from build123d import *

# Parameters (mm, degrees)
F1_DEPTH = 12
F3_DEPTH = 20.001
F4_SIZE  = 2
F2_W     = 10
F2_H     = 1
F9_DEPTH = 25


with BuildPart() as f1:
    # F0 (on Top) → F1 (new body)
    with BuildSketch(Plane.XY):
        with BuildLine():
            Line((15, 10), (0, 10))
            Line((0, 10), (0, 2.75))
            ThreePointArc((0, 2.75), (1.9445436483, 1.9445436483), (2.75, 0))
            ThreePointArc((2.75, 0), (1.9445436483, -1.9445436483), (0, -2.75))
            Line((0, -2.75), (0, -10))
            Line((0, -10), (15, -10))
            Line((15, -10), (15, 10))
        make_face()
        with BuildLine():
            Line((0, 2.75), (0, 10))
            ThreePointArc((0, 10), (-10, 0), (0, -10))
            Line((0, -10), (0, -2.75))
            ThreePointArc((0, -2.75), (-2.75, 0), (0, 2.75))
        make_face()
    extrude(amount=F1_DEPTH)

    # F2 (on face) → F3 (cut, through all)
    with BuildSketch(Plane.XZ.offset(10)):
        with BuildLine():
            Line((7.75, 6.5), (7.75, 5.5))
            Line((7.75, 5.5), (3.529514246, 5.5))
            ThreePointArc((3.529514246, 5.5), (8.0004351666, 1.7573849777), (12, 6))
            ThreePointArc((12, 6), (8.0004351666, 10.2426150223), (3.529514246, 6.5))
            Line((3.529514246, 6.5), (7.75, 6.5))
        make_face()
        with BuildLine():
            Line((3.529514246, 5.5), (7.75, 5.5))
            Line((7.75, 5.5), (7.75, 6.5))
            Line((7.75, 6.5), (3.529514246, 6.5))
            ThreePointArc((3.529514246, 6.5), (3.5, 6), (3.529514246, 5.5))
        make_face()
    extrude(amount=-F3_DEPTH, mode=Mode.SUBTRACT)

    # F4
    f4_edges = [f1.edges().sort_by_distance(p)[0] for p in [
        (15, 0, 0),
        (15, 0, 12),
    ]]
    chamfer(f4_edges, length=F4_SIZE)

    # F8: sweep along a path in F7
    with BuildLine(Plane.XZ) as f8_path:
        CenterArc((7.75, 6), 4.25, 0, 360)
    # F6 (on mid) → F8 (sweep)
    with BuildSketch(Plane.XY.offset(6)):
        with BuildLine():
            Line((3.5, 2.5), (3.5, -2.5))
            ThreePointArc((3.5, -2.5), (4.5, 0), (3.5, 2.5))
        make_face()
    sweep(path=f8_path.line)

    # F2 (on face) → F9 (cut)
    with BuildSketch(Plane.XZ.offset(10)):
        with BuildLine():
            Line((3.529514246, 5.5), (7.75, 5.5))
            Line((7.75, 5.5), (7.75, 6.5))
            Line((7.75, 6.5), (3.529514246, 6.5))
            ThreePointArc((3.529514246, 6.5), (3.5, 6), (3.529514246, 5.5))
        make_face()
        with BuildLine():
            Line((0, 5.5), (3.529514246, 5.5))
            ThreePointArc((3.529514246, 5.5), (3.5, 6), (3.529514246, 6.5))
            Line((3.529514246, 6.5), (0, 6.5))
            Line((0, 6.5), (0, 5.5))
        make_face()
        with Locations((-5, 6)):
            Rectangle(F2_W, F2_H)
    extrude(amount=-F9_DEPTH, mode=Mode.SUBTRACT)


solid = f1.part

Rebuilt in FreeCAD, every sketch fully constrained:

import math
import FreeCAD as App
import Part
import Sketcher

V = App.Vector
Q = App.Units.Quantity


def edges_at(feature, points):
    """Names of the edges that pass closest to the given points."""
    edges = feature.Shape.Edges
    near = lambda p: min(range(len(edges)), key=lambda i: edges[i].distToShape(Part.Vertex(*p))[0])
    return sorted({f"Edge{near(p) + 1}" for p in points})


def add_polygon(sketch, points):
    """Adds a closed chain of lines whose ends are joined by coincident constraints."""
    first, n = sketch.GeometryCount, len(points)
    for a, b in zip(points, points[1:] + points[:1]):
        sketch.addGeometry(Part.LineSegment(App.Vector(*a, 0), App.Vector(*b, 0)), False)
    for i in range(n):
        sketch.addConstraint(Sketcher.Constraint("Coincident", first + i, 2, first + (i + 1) % n, 1))

doc = App.newDocument("Part")
body = doc.addObject("PartDesign::Body", "Body")

# Sketch on XY plane
sketch1 = body.newObject("Sketcher::SketchObject", "Sketch")
sketch1.AttachmentSupport = (doc.getObject("XY_Plane"), [""])
sketch1.MapMode = "FlatFace"
sketch1.addGeometry([
    Part.LineSegment(V(15, 10, 0), V(0, 10, 0)),  # 0
    Part.ArcOfCircle(Part.Circle(V(0, 0, 0), V(0, 0, 1), 10), math.radians(90), math.radians(270)),  # 1
    Part.LineSegment(V(0, -10, 0), V(15, -10, 0)),  # 2
    Part.LineSegment(V(15, -10, 0), V(15, 10, 0)),  # 3
    Part.ArcOfCircle(Part.Circle(V(0, 0, 0), V(0, 0, 1), 2.8), math.radians(0), math.radians(90)),  # 4
    Part.ArcOfCircle(Part.Circle(V(0, 0, 0), V(0, 0, 1), 2.8), math.radians(-90), math.radians(0)),  # 5
    Part.ArcOfCircle(Part.Circle(V(0, 0, 0), V(0, 0, 1), 2.8), math.radians(90), math.radians(270)),  # 6
], False)
sketch1.addConstraint([
    Sketcher.Constraint("Tangent", 0, 2, 1, 1),
    Sketcher.Constraint("Tangent", 1, 2, 2, 1),
    Sketcher.Constraint("Coincident", 2, 2, 3, 1),
    Sketcher.Constraint("Coincident", 3, 2, 0, 1),
    Sketcher.Constraint("Tangent", 4, 1, 5, 2),
    Sketcher.Constraint("Tangent", 5, 1, 6, 2),
    Sketcher.Constraint("Tangent", 6, 1, 4, 2),
    Sketcher.Constraint("Horizontal", 0),
    Sketcher.Constraint("Horizontal", 2),
    Sketcher.Constraint("Vertical", 3),
    Sketcher.Constraint("Coincident", 1, 3, -1, 1),
    Sketcher.Constraint("Coincident", 4, 3, -1, 1),
    Sketcher.Constraint("PointOnObject", 4, 1, -1),
    Sketcher.Constraint("PointOnObject", 5, 1, -2),
    Sketcher.Constraint("PointOnObject", 6, 1, -2),
    Sketcher.Constraint("Radius", 1, Q("10 mm")),
    Sketcher.Constraint("DistanceX", 0, 2, 0, 1, Q("15 mm")),
    Sketcher.Constraint("Radius", 4, Q("2.75 mm")),
])
pad1 = body.newObject("PartDesign::Pad", "Pad")
pad1.Profile = sketch1
pad1.Length = 12

# Sketch on XZ plane
sketch2 = body.newObject("Sketcher::SketchObject", "Sketch001")
sketch2.AttachmentSupport = (doc.getObject("XZ_Plane"), [""])
sketch2.MapMode = "FlatFace"
sketch2.AttachmentOffset = App.Placement(V(0, 0, 10), App.Rotation())
sketch2.addGeometry([
    Part.ArcOfCircle(Part.Circle(V(7.8, 6, 0), V(0, 0, 1), 4.2), math.radians(-173), math.radians(0)),
    Part.ArcOfCircle(Part.Circle(V(7.8, 6, 0), V(0, 0, 1), 4.2), math.radians(0), math.radians(173)),
    Part.ArcOfCircle(Part.Circle(V(7.7, 6, 0), V(0, 0, 1), 4.2), math.radians(173.24), math.radians(186.76)),
], False)
sketch2.addConstraint([
    Sketcher.Constraint("Tangent", 0, 2, 1, 1),
    Sketcher.Constraint("Tangent", 1, 2, 2, 1),
    Sketcher.Constraint("Tangent", 2, 2, 0, 1),
    Sketcher.Constraint("Horizontal", 2, 3, 0, 2),
    Sketcher.Constraint("Vertical", 1, 2, 2, 2),
    Sketcher.Constraint("Radius", 0, Q("4.25 mm")),
    Sketcher.Constraint("DistanceY", -1, 1, 0, 3, Q("6 mm")),
    Sketcher.Constraint("DistanceX", -1, 1, 0, 2, Q("12 mm")),
    Sketcher.Constraint("DistanceY", 2, 2, 1, 2, Q("1 mm")),
])
pocket1 = body.newObject("PartDesign::Pocket", "Pocket")
pocket1.Profile = sketch2
pocket1.Type = "ThroughAll"
doc.recompute()

chamfer = body.newObject("PartDesign::Chamfer", "Chamfer")
chamfer.Base = (pocket1, edges_at(pocket1, [(15, 0, 0), (15, 0, 12)]))
chamfer.Size = 2

# Sketch on XY plane
sketch3 = body.newObject("Sketcher::SketchObject", "Sketch002")
sketch3.AttachmentSupport = (doc.getObject("XY_Plane"), [""])
sketch3.MapMode = "FlatFace"
sketch3.AttachmentOffset = App.Placement(V(0, 0, 6), App.Rotation())
sketch3.addGeometry([
    Part.LineSegment(V(3.5, 2.5, 0), V(3.5, -2.5, 0)),
    Part.ArcOfCircle(Part.Circle(V(0.9, 0, 0), V(0, 0, 1), 3.6), math.radians(-44), math.radians(44)),
], False)
sketch3.addConstraint([
    Sketcher.Constraint("Coincident", 0, 1, 1, 2),
    Sketcher.Constraint("Coincident", 1, 1, 0, 2),
    Sketcher.Constraint("Vertical", 0),
    Sketcher.Constraint("PointOnObject", 1, 3, -1),
    Sketcher.Constraint("DistanceY", 0, 2, 0, 1, Q("5 mm")),
    Sketcher.Constraint("Radius", 1, Q("3.625 mm")),
    Sketcher.Constraint("DistanceX", -1, 1, 0, 1, Q("3.5 mm")),
])

# Sketch on XZ plane
sketch4 = body.newObject("Sketcher::SketchObject", "Sketch003")
sketch4.AttachmentSupport = (doc.getObject("XZ_Plane"), [""])
sketch4.MapMode = "FlatFace"
sketch4.addGeometry(Part.Circle(V(7.8, 6, 0), V(0, 0, 1), 4.2), False)
sketch4.addConstraint([
    Sketcher.Constraint("Diameter", 0, Q("8.5 mm")),
    Sketcher.Constraint("DistanceY", -1, 1, 0, 3, Q("6 mm")),
    Sketcher.Constraint("DistanceX", -1, 1, 0, 3, Q("7.75 mm")),
])
doc.recompute()

additivepipe = body.newObject("PartDesign::AdditivePipe", "AdditivePipe")
additivepipe.Profile = sketch3
additivepipe.Spine = (sketch4, ["Edge1"])

# Sketch on XZ plane
sketch5 = body.newObject("Sketcher::SketchObject", "Sketch004")
sketch5.AttachmentSupport = (doc.getObject("XZ_Plane"), [""])
sketch5.MapMode = "FlatFace"
sketch5.AttachmentOffset = App.Placement(V(0, 0, 10), App.Rotation())
add_polygon(sketch5, [(7.8, 5.5), (7.8, 6.5), (-10, 6.5), (-10, 5.5)])  # lines 0-3
sketch5.addConstraint([
    Sketcher.Constraint("Vertical", 0),
    Sketcher.Constraint("Horizontal", 1),
    Sketcher.Constraint("Vertical", 2),
    Sketcher.Constraint("Horizontal", 3),
    Sketcher.Constraint("DistanceY", 0, 1, 0, 2, Q("1 mm")),
    Sketcher.Constraint("DistanceX", 1, 2, -1, 1, Q("10 mm")),
    Sketcher.Constraint("DistanceX", 1, 2, 1, 1, Q("17.75 mm")),
    Sketcher.Constraint("DistanceY", -1, 1, 0, 2, Q("6.5 mm")),
])
pocket2 = body.newObject("PartDesign::Pocket", "Pocket001")
pocket2.Profile = sketch5
pocket2.Length = 25

doc.recompute()
